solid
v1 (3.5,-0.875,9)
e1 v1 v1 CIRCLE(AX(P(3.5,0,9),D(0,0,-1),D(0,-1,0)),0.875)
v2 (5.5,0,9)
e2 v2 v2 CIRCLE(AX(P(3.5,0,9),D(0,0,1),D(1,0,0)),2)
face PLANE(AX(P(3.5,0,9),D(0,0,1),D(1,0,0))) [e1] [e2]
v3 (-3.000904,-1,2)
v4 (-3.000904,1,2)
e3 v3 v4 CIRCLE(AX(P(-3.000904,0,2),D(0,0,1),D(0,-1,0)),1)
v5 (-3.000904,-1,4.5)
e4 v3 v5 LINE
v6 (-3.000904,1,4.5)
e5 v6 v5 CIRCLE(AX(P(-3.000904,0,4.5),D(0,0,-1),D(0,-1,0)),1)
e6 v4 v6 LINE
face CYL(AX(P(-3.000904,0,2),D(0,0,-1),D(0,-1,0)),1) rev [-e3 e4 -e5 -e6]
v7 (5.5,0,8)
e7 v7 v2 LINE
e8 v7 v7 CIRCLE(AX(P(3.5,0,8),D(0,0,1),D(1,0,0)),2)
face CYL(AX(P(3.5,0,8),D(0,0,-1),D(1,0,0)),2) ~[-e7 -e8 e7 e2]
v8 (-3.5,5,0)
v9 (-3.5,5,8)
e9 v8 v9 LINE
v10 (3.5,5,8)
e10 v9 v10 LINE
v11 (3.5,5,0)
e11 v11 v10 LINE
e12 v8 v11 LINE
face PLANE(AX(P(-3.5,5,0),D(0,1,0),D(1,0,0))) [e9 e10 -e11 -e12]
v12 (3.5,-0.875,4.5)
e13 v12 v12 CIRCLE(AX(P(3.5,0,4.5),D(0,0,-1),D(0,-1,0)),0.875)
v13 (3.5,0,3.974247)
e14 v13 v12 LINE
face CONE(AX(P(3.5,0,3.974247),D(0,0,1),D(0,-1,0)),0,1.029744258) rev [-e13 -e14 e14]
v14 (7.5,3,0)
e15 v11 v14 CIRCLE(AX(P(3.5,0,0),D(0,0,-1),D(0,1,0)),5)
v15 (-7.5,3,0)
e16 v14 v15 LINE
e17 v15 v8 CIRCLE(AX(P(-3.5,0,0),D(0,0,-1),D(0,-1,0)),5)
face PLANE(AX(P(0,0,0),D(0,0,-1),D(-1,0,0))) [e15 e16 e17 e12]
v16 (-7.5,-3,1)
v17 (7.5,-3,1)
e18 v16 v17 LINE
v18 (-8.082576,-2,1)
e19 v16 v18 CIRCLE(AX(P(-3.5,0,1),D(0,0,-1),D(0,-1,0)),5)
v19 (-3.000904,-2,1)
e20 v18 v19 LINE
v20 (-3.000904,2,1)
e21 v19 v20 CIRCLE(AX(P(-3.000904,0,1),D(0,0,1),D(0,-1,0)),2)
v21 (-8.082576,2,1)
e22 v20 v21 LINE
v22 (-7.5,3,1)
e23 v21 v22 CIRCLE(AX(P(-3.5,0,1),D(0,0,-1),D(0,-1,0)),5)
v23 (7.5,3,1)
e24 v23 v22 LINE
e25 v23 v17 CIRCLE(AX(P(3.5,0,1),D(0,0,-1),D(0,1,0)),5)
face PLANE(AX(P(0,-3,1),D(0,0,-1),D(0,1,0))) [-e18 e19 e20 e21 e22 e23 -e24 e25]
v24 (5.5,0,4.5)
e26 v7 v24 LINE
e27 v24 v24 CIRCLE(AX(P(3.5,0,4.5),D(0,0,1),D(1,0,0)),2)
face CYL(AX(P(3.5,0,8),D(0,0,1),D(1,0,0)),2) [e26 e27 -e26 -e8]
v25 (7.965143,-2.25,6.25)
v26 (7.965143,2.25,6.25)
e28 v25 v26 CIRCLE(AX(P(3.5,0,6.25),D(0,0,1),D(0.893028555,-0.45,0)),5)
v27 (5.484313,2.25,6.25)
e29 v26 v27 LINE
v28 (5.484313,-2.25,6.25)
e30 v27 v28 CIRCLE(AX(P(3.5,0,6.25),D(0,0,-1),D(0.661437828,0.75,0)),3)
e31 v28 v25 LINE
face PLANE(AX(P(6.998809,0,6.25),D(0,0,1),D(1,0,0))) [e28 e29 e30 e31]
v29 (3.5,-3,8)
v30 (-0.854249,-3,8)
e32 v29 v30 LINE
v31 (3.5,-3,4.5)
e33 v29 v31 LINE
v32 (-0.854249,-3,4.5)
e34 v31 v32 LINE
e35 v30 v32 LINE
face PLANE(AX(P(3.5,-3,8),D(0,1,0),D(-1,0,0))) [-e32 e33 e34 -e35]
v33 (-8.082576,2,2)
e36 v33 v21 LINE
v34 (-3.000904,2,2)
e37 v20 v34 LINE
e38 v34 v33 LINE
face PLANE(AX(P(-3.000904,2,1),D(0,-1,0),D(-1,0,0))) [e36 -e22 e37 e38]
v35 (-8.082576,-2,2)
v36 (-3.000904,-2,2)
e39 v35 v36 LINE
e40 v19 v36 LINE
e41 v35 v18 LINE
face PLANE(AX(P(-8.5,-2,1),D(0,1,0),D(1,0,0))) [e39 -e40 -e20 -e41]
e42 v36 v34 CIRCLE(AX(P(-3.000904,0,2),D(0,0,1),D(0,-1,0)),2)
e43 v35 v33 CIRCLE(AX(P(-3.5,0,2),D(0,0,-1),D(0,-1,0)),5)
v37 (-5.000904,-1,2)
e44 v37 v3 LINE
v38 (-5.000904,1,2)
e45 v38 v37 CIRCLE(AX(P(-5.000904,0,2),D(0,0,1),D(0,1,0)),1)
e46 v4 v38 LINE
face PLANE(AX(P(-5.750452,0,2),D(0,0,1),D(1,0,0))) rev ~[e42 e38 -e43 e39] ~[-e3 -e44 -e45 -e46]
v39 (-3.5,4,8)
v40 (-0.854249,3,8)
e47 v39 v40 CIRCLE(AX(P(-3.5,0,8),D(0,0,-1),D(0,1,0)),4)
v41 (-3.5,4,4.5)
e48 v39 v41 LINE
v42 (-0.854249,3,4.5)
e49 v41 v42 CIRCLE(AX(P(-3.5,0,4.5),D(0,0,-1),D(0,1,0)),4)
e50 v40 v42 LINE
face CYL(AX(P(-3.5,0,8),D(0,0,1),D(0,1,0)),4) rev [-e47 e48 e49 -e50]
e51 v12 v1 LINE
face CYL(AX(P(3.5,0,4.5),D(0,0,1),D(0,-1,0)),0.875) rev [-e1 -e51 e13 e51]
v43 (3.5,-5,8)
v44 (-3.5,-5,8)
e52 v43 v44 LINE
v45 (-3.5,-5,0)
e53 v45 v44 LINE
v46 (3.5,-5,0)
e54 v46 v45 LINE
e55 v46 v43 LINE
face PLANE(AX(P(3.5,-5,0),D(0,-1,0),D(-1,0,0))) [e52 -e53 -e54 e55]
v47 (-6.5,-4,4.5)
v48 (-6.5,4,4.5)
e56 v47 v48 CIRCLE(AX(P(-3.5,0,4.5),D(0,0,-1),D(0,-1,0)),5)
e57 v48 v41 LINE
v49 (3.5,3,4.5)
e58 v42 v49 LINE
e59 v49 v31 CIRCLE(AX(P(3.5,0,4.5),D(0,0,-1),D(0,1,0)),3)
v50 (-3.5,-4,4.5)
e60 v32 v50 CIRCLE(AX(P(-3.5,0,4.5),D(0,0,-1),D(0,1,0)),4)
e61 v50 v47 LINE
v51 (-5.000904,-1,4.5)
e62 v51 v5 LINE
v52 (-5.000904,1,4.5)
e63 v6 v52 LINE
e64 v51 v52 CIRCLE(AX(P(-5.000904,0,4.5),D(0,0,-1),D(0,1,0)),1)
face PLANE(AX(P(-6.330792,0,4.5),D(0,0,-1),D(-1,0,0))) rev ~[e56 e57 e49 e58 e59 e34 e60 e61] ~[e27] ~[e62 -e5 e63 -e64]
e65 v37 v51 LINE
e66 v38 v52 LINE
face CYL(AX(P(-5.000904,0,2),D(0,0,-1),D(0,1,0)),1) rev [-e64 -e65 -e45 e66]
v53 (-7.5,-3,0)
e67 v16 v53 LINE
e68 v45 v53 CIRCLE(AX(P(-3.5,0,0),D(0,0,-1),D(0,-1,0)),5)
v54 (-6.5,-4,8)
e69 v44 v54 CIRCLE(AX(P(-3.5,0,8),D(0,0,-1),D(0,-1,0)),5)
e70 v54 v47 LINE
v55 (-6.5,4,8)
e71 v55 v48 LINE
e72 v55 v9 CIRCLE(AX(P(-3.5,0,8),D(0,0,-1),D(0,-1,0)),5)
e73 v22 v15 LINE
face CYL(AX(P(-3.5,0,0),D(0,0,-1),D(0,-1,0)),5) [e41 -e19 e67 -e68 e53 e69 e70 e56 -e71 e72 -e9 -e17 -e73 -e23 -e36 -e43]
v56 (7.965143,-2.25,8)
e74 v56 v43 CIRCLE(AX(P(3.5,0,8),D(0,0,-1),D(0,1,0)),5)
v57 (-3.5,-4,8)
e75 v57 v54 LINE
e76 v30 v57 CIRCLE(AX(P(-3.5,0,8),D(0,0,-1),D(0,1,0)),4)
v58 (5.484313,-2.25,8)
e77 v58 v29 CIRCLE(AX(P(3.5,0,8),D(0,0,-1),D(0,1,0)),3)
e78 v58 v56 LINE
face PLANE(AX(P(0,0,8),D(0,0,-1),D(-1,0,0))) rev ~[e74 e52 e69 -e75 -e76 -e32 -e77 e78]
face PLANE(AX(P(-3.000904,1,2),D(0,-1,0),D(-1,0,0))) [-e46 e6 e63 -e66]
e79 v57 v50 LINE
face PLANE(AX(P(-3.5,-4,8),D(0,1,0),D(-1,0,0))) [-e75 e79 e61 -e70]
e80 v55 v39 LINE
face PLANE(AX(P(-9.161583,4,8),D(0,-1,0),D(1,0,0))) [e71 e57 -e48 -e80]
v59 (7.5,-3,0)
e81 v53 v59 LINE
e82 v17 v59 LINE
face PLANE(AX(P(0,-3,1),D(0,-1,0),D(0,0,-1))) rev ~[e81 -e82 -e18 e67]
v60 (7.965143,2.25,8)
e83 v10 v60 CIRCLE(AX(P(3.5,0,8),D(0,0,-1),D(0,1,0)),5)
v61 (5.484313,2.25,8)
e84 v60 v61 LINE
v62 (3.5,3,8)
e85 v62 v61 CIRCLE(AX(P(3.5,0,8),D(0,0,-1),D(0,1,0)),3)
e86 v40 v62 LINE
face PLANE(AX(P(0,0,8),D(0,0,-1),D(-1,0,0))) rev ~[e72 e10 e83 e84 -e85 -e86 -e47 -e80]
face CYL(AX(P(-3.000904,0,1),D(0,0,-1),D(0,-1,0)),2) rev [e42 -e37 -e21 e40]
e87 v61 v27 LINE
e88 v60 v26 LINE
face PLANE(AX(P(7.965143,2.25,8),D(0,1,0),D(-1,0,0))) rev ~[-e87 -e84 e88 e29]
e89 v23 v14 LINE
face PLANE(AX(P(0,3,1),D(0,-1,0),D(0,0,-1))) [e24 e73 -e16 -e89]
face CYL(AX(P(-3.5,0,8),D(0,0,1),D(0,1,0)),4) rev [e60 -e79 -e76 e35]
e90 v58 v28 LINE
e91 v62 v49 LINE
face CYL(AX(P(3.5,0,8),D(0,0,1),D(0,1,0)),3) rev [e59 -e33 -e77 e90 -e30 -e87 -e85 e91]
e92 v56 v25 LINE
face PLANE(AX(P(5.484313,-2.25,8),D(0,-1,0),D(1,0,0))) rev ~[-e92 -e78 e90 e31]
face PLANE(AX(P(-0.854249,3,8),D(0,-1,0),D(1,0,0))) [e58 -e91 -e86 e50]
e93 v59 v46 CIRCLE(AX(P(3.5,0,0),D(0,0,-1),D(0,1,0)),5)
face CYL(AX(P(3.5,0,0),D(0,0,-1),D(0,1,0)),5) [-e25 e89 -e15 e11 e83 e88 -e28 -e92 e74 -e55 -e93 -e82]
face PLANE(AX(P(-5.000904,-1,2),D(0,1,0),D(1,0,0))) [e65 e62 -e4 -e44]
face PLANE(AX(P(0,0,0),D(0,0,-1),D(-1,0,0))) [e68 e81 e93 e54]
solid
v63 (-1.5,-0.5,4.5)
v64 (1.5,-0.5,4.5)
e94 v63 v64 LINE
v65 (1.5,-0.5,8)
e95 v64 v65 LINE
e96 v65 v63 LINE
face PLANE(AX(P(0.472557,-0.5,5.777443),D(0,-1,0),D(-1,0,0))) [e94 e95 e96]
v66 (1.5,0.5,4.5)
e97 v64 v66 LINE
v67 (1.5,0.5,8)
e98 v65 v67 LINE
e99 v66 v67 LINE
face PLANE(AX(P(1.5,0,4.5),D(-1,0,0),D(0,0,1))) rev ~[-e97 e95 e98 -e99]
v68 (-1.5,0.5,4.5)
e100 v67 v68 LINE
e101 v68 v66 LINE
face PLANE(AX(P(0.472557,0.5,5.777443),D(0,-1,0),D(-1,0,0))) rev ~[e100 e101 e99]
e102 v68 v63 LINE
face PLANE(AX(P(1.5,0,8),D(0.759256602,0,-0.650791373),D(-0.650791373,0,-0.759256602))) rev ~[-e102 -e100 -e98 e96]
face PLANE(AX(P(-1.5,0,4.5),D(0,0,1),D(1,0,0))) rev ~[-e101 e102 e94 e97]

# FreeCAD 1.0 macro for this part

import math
import FreeCAD as App
import Part
import Sketcher
Q = App.Units.Quantity

doc = App.newDocument("Part")
body = doc.addObject("PartDesign::Body", "Body")

# Sketch on XY plane
sketch1 = body.newObject("Sketcher::SketchObject", "Sketch")
sketch1.AttachmentSupport = (doc.getObject("XY_Plane"), [""])
sketch1.MapMode = "FlatFace"
sketch1.addGeometry([
    Part.LineSegment(App.Vector(3.5, 5, 0), App.Vector(-3.5, 5, 0)),
    Part.ArcOfCircle(Part.Circle(App.Vector(-3.5, 0, 0), App.Vector(0, 0, 1), 5), math.radians(90), math.radians(270)),
    Part.LineSegment(App.Vector(-3.5, -5, 0), App.Vector(3.5, -5, 0)),
    Part.ArcOfCircle(Part.Circle(App.Vector(3.5, 0, 0), App.Vector(0, 0, 1), 5), math.radians(-90), math.radians(90)),
], False)
sketch1.addConstraint([
    Sketcher.Constraint("Tangent", 0, 2, 1, 1),
    Sketcher.Constraint("Tangent", 1, 2, 2, 1),
    Sketcher.Constraint("Tangent", 2, 2, 3, 1),
    Sketcher.Constraint("Tangent", 3, 2, 0, 1),
    Sketcher.Constraint("Horizontal", 0),
    Sketcher.Constraint("Horizontal", 2),
    Sketcher.Constraint("Symmetric", 1, 3, 3, 3, -1, 1),
    Sketcher.Constraint("Radius", 1, 5.0),
    Sketcher.Constraint("DistanceX", 0, 2, 0, 1, 7.0),
])
pad1 = body.newObject("PartDesign::Pad", "Pad")
pad1.Profile = sketch1
pad1.Length = 8

# Sketch on YZ plane
sketch2 = body.newObject("Sketcher::SketchObject", "Sketch001")
sketch2.AttachmentSupport = (doc.getObject("YZ_Plane"), [""])
sketch2.MapMode = "FlatFace"
sketch2.addGeometry([
    Part.LineSegment(App.Vector(3, 1, 0), App.Vector(-3, 1, 0)),
    Part.LineSegment(App.Vector(-3, 1, 0), App.Vector(-3, 0, 0)),
    Part.LineSegment(App.Vector(-3, 0, 0), App.Vector(3, 0, 0)),
    Part.LineSegment(App.Vector(3, 0, 0), App.Vector(3, 1, 0)),
], False)
sketch2.addConstraint([
    Sketcher.Constraint("Coincident", 0, 2, 1, 1),
    Sketcher.Constraint("Coincident", 1, 2, 2, 1),
    Sketcher.Constraint("Coincident", 2, 2, 3, 1),
    Sketcher.Constraint("Coincident", 3, 2, 0, 1),
    Sketcher.Constraint("Horizontal", 0),
    Sketcher.Constraint("Vertical", 1),
    Sketcher.Constraint("Horizontal", 2),
    Sketcher.Constraint("Vertical", 3),
    Sketcher.Constraint("Symmetric", 1, 2, 2, 2, -1, 1),
    Sketcher.Constraint("DistanceX", 0, 2, 0, 1, 6.0),
    Sketcher.Constraint("DistanceY", 1, 2, 1, 1, 1.0),
])
pocket1 = body.newObject("PartDesign::Pocket", "Pocket")
pocket1.Profile = sketch2
pocket1.Length = 18
pocket1.Midplane = True

# Sketch on XY plane
sketch3 = body.newObject("Sketcher::SketchObject", "Sketch002")
sketch3.AttachmentSupport = (doc.getObject("XY_Plane"), [""])
sketch3.MapMode = "FlatFace"
sketch3.AttachmentOffset = App.Placement(App.Vector(0, 0, 1), App.Rotation())
sketch3.addGeometry([
    Part.LineSegment(App.Vector(-8.5, 2, 0), App.Vector(-3.000904, 2, 0)),
    Part.ArcOfCircle(Part.Circle(App.Vector(-3.000904, 0, 0), App.Vector(0, 0, 1), 2), math.radians(-90), math.radians(90)),
    Part.LineSegment(App.Vector(-3.000904, -2, 0), App.Vector(-8.5, -2, 0)),
    Part.ArcOfCircle(Part.Circle(App.Vector(-8.5, 0, 0), App.Vector(0, 0, 1), 2), math.radians(90), math.radians(270)),
], False)
sketch3.addConstraint([
    Sketcher.Constraint("Tangent", 0, 2, 1, 2),
    Sketcher.Constraint("Tangent", 1, 1, 2, 1),
    Sketcher.Constraint("Tangent", 2, 2, 3, 2),
    Sketcher.Constraint("Tangent", 3, 1, 0, 1),
    Sketcher.Constraint("Horizontal", 0),
    Sketcher.Constraint("Horizontal", 2),
    Sketcher.Constraint("PointOnObject", 1, 3, -1),
    Sketcher.Constraint("Radius", 1, 2.0),
    Sketcher.Constraint("DistanceX", 3, 3, -1, 1, 8.5),
    Sketcher.Constraint("DistanceX", 0, 1, 0, 2, 5.499096),
])
pocket2 = body.newObject("PartDesign::Pocket", "Pocket001")
pocket2.Profile = sketch3
pocket2.Length = 1
pocket2.Reversed = True

# Sketch on XY plane
sketch4 = body.newObject("Sketcher::SketchObject", "Sketch003")
sketch4.AttachmentSupport = (doc.getObject("XY_Plane"), [""])
sketch4.MapMode = "FlatFace"
sketch4.AttachmentOffset = App.Placement(App.Vector(0, 0, 8), App.Rotation())
sketch4.addGeometry([
    Part.ArcOfCircle(Part.Circle(App.Vector(-9.161583, 0, 0), App.Vector(0, 0, 1), 4), math.radians(90), math.radians(270)),  # 0
    Part.LineSegment(App.Vector(-9.161583, -4, 0), App.Vector(-3.5, -4, 0)),  # 1
    Part.ArcOfCircle(Part.Circle(App.Vector(-3.5, 0, 0), App.Vector(0, 0, 1), 4), math.radians(-90), math.radians(-48.590378)),  # 2
    Part.LineSegment(App.Vector(-0.854249, -3, 0), App.Vector(3.5, -3, 0)),  # 3
    Part.ArcOfCircle(Part.Circle(App.Vector(3.5, 0, 0), App.Vector(0, 0, 1), 3), math.radians(-90), math.radians(90)),  # 4
    Part.LineSegment(App.Vector(3.5, 3, 0), App.Vector(-0.854249, 3, 0)),  # 5
    Part.ArcOfCircle(Part.Circle(App.Vector(-3.5, 0, 0), App.Vector(0, 0, 1), 4), math.radians(48.590378), math.radians(90)),  # 6
    Part.LineSegment(App.Vector(-3.5, 4, 0), App.Vector(-9.161583, 4, 0)),  # 7
    Part.Circle(App.Vector(3.5, 0, 0), App.Vector(0, 0, 1), 2),  # 8
], False)
sketch4.addConstraint([
    Sketcher.Constraint("Tangent", 0, 2, 1, 1),
    Sketcher.Constraint("Tangent", 1, 2, 2, 1),
    Sketcher.Constraint("Coincident", 2, 2, 3, 1),
    Sketcher.Constraint("Tangent", 3, 2, 4, 1),
    Sketcher.Constraint("Tangent", 4, 2, 5, 1),
    Sketcher.Constraint("Coincident", 5, 2, 6, 1),
    Sketcher.Constraint("Tangent", 6, 2, 7, 1),
    Sketcher.Constraint("Tangent", 7, 2, 0, 1),
    Sketcher.Constraint("Horizontal", 1),
    Sketcher.Constraint("Horizontal", 3),
    Sketcher.Constraint("Horizontal", 5),
    Sketcher.Constraint("Horizontal", 7),
    Sketcher.Constraint("Coincident", 6, 3, 2, 3),
    Sketcher.Constraint("Coincident", 8, 3, 4, 3),
    Sketcher.Constraint("Equal", 0, 2),
    Sketcher.Constraint("Symmetric", 2, 3, 4, 3, -1, 1),
    Sketcher.Constraint("PointOnObject", 0, 3, -1),
    Sketcher.Constraint("Diameter", 8, 4.0),
    Sketcher.Constraint("Radius", 0, 4.0),
    Sketcher.Constraint("Radius", 4, 3.0),
    Sketcher.Constraint("DistanceX", 2, 3, 4, 3, 7.0),
    Sketcher.Constraint("DistanceX", 1, 1, 1, 2, 5.661583),
])
pocket3 = body.newObject("PartDesign::Pocket", "Pocket002")
pocket3.Profile = sketch4
pocket3.Length = 3.5

# Sketch on XY plane
sketch5 = body.newObject("Sketcher::SketchObject", "Sketch004")
sketch5.AttachmentSupport = (doc.getObject("XY_Plane"), [""])
sketch5.MapMode = "FlatFace"
sketch5.AttachmentOffset = App.Placement(App.Vector(0, 0, 2), App.Rotation())
sketch5.addGeometry([
    Part.LineSegment(App.Vector(-5.000904, 1, 0), App.Vector(-3.000904, 1, 0)),
    Part.ArcOfCircle(Part.Circle(App.Vector(-3.000904, 0, 0), App.Vector(0, 0, 1), 1), math.radians(-90), math.radians(90)),
    Part.LineSegment(App.Vector(-3.000904, -1, 0), App.Vector(-5.000904, -1, 0)),
    Part.ArcOfCircle(Part.Circle(App.Vector(-5.000904, 0, 0), App.Vector(0, 0, 1), 1), math.radians(90), math.radians(270)),
], False)
sketch5.addConstraint([
    Sketcher.Constraint("Tangent", 0, 2, 1, 2),
    Sketcher.Constraint("Tangent", 1, 1, 2, 1),
    Sketcher.Constraint("Tangent", 2, 2, 3, 2),
    Sketcher.Constraint("Tangent", 3, 1, 0, 1),
    Sketcher.Constraint("Horizontal", 0),
    Sketcher.Constraint("Horizontal", 2),
    Sketcher.Constraint("PointOnObject", 1, 3, -1),
    Sketcher.Constraint("Radius", 1, 1.0),
    Sketcher.Constraint("DistanceX", 0, 1, 0, 2, 2.0),
    Sketcher.Constraint("DistanceX", 1, 3, -1, 1, 3.000904),
])
pocket4 = body.newObject("PartDesign::Pocket", "Pocket003")
pocket4.Profile = sketch5
pocket4.Length = 6.025665
pocket4.Reversed = True

# Sketch on XY plane
sketch6 = body.newObject("Sketcher::SketchObject", "Sketch005")
sketch6.AttachmentSupport = (doc.getObject("XY_Plane"), [""])
sketch6.MapMode = "FlatFace"
sketch6.AttachmentOffset = App.Placement(App.Vector(0, 0, 8), App.Rotation())
sketch6.addGeometry([
    Part.LineSegment(App.Vector(7.965143, 2.25, 0), App.Vector(5.484313, 2.25, 0)),
    Part.ArcOfCircle(Part.Circle(App.Vector(3.5, 0, 0), App.Vector(0, 0, 1), 3), math.radians(-48.590378), math.radians(48.590378)),
    Part.LineSegment(App.Vector(5.484313, -2.25, 0), App.Vector(7.965143, -2.25, 0)),
    Part.ArcOfCircle(Part.Circle(App.Vector(3.5, 0, 0), App.Vector(0, 0, 1), 5), math.radians(-26.743684), math.radians(26.743684)),
], False)
sketch6.addConstraint([
    Sketcher.Constraint("Coincident", 0, 2, 1, 2),
    Sketcher.Constraint("Coincident", 1, 1, 2, 1),
    Sketcher.Constraint("Coincident", 2, 2, 3, 1),
    Sketcher.Constraint("Coincident", 3, 2, 0, 1),
    Sketcher.Constraint("Horizontal", 0),
    Sketcher.Constraint("Horizontal", 2),
    Sketcher.Constraint("Coincident", 3, 3, 1, 3),
    Sketcher.Constraint("Symmetric", 0, 2, 1, 1, -1),
    Sketcher.Constraint("Radius", 1, 3.0),
    Sketcher.Constraint("Radius", 3, 5.0),
    Sketcher.Constraint("DistanceX", -1, 1, 1, 3, 3.5),
    Sketcher.Constraint("DistanceY", 1, 1, 0, 2, 4.5),
])
pocket5 = body.newObject("PartDesign::Pocket", "Pocket004")
pocket5.Profile = sketch6
pocket5.Length = 1.75

# Sketch on XY plane
sketch7 = body.newObject("Sketcher::SketchObject", "Sketch006")
sketch7.AttachmentSupport = (doc.getObject("XY_Plane"), [""])
sketch7.MapMode = "FlatFace"
sketch7.AttachmentOffset = App.Placement(App.Vector(0, 0, 8), App.Rotation())
sketch7.addGeometry(Part.Circle(App.Vector(3.5, 0, 0), App.Vector(0, 0, 1), 2), False)
sketch7.addConstraint([
    Sketcher.Constraint("PointOnObject", 0, 3, -1),
    Sketcher.Constraint("Diameter", 0, 4.0),
    Sketcher.Constraint("DistanceX", -1, 1, 0, 3, 3.5),
])
pad2 = body.newObject("PartDesign::Pad", "Pad001")
pad2.Profile = sketch7
pad2.Length = 1

# Sketch on YZ plane
sketch8 = body.newObject("Sketcher::SketchObject", "Sketch007")
sketch8.AttachmentSupport = (doc.getObject("YZ_Plane"), [""])
sketch8.MapMode = "FlatFace"
sketch8.AttachmentOffset = App.Placement(App.Vector(0, 0, 3.5), App.Rotation())
sketch8.addGeometry([
    Part.LineSegment(App.Vector(0, 3.974247, 0), App.Vector(0, 9, 0)),
    Part.LineSegment(App.Vector(0, 9, 0), App.Vector(-0.875, 9, 0)),
    Part.LineSegment(App.Vector(-0.875, 9, 0), App.Vector(-0.875, 4.5, 0)),
    Part.LineSegment(App.Vector(-0.875, 4.5, 0), App.Vector(0, 3.974247, 0)),
], False)
sketch8.addConstraint([
    Sketcher.Constraint("Coincident", 0, 2, 1, 1),
    Sketcher.Constraint("Coincident", 1, 2, 2, 1),
    Sketcher.Constraint("Coincident", 2, 2, 3, 1),
    Sketcher.Constraint("Coincident", 3, 2, 0, 1),
    Sketcher.Constraint("Vertical", 0),
    Sketcher.Constraint("Horizontal", 1),
    Sketcher.Constraint("Vertical", 2),
    Sketcher.Constraint("PointOnObject", 0, 2, -2),
    Sketcher.Constraint("Angle", 3, Q("-31 deg")),
    Sketcher.Constraint("DistanceY", 2, 2, 2, 1, 4.5),
    Sketcher.Constraint("DistanceY", -1, 1, 0, 2, 9.0),
    Sketcher.Constraint("DistanceX", 1, 2, 1, 1, 0.875),
])
groove = body.newObject("PartDesign::Groove", "Groove")
groove.Profile = sketch8
groove.ReferenceAxis = (sketch8, ["V_Axis"])
groove.Angle = 360
body2 = doc.addObject("PartDesign::Body", "Body001")

# Sketch on XZ plane
sketch9 = body2.newObject("Sketcher::SketchObject", "Sketch008")
sketch9.AttachmentSupport = (doc.getObject("XZ_Plane001"), [""])
sketch9.MapMode = "FlatFace"
sketch9.addGeometry([
    Part.LineSegment(App.Vector(-1.5, 4.5, 0), App.Vector(1.5, 8, 0)),
    Part.LineSegment(App.Vector(1.5, 8, 0), App.Vector(1.5, 4.5, 0)),
    Part.LineSegment(App.Vector(1.5, 4.5, 0), App.Vector(-1.5, 4.5, 0)),
], False)
sketch9.addConstraint([
    Sketcher.Constraint("Coincident", 0, 2, 1, 1),
    Sketcher.Constraint("Coincident", 1, 2, 2, 1),
    Sketcher.Constraint("Coincident", 2, 2, 0, 1),
    Sketcher.Constraint("Vertical", 1),
    Sketcher.Constraint("Horizontal", 2),
    Sketcher.Constraint("DistanceX", 2, 2, 2, 1, 3.0),
    Sketcher.Constraint("DistanceY", 1, 2, 1, 1, 3.5),
    Sketcher.Constraint("DistanceY", -1, 1, 0, 2, 8.0),
    Sketcher.Constraint("DistanceX", -1, 1, 0, 2, 1.5),
])
pad3 = body2.newObject("PartDesign::Pad", "Pad002")
pad3.Profile = sketch9
pad3.Length = 1
pad3.Midplane = True

doc.recompute()
